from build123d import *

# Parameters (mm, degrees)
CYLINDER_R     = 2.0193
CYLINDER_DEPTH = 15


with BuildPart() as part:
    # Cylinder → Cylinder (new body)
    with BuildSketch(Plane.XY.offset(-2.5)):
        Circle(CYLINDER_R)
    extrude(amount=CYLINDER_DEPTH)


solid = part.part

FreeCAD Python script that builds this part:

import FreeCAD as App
import Part
import Sketcher
from FreeCAD import Vector

doc = App.newDocument("Part")
body = doc.addObject("PartDesign::Body", "Body")

sketch1 = body.newObject("Sketcher::SketchObject", "Sketch")
sketch1.AttachmentSupport = (doc.getObject("XY_Plane"), [""])
sketch1.MapMode = "FlatFace"
sketch1.AttachmentOffset = App.Placement(Vector(0, 0, -2.5), App.Rotation())
sketch1.addGeometry(Part.Circle(Vector(0, 0, 0), Vector(0, 0, 1), 2), False)
sketch1.addConstraint(Sketcher.Constraint("Coincident", 0, 3, -1, 1))
sketch1.addConstraint(Sketcher.Constraint("Diameter", 0, 4.0386))
pad1 = body.newObject("PartDesign::Pad", "Pad")
pad1.Profile = sketch1
pad1.Length = 15

doc.recompute()
